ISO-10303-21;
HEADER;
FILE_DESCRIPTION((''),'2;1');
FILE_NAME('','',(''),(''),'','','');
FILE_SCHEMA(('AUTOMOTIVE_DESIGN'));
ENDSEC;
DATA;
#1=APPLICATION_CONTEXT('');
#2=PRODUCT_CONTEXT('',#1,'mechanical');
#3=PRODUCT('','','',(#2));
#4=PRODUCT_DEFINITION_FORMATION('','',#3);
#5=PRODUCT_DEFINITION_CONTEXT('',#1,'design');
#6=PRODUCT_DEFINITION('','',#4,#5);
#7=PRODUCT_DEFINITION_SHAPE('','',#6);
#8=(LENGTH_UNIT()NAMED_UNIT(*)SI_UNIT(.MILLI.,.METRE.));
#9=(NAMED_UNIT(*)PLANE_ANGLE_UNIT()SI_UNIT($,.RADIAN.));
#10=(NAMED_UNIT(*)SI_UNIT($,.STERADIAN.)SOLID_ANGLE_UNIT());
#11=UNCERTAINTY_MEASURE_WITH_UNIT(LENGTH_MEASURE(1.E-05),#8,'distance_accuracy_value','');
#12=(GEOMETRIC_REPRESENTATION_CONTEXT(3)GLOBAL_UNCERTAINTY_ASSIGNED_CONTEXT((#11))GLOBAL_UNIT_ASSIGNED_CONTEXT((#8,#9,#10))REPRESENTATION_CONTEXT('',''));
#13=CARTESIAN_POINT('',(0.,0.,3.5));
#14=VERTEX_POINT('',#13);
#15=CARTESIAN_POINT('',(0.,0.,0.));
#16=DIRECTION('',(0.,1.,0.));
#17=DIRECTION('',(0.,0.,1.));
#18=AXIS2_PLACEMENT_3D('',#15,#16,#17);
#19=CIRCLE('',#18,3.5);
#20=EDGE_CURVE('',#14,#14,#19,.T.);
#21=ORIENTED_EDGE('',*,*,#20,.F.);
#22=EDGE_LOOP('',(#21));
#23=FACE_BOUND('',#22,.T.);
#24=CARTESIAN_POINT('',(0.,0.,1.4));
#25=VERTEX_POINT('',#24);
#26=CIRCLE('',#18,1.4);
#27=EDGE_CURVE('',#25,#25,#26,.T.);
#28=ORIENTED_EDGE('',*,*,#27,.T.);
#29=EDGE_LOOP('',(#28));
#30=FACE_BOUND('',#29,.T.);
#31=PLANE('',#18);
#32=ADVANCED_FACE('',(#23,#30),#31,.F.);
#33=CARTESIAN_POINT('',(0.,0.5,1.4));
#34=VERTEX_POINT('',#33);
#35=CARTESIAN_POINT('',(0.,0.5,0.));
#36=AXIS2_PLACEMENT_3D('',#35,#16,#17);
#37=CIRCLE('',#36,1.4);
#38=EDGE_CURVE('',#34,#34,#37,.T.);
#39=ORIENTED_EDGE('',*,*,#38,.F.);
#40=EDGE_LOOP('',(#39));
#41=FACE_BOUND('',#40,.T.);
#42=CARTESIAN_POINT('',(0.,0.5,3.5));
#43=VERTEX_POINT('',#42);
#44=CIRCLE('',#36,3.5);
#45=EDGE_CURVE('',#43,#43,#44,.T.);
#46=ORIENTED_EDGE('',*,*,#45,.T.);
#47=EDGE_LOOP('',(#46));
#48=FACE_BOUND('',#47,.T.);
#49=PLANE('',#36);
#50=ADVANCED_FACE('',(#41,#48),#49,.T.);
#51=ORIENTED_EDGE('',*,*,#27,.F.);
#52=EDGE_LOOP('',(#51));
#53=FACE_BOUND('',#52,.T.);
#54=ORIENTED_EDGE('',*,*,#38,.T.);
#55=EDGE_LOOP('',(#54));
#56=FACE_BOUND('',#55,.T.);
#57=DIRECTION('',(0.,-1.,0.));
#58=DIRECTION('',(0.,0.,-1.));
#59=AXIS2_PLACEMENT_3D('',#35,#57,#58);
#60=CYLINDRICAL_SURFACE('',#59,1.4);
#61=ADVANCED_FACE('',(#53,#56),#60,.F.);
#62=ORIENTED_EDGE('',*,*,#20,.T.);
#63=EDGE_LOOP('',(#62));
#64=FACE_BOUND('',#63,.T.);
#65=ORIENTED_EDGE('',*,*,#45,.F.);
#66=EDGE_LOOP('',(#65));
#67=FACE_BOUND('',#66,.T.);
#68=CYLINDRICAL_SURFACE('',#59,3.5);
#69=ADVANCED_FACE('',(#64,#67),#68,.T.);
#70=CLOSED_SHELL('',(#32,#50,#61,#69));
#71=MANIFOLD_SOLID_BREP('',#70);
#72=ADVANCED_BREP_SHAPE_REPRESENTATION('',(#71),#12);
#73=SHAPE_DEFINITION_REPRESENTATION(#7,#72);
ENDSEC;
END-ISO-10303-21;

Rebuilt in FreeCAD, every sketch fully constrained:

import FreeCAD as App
import Part
import Sketcher

V = App.Vector

doc = App.newDocument("Part")
body = doc.addObject("PartDesign::Body", "Body")

sketch1 = body.newObject("Sketcher::SketchObject", "Sketch")
sketch1.AttachmentSupport = (doc.getObject("XZ_Plane"), [""])
sketch1.MapMode = "FlatFace"
sketch1.addGeometry([
    Part.Circle(V(0, 0, 0), V(0, 0, 1), 3.5),
    Part.Circle(V(0, 0, 0), V(0, 0, 1), 1.4),
], False)
sketch1.addConstraint([
    Sketcher.Constraint("Coincident", 0, 3, -1, 1),
    Sketcher.Constraint("Coincident", 1, 3, -1, 1),
    Sketcher.Constraint("Diameter", 0, 7.0),
    Sketcher.Constraint("Diameter", 1, 2.8),
])
pad1 = body.newObject("PartDesign::Pad", "Pad")
pad1.Profile = sketch1
pad1.Length = 0.5
pad1.Reversed = True

doc.recompute()
